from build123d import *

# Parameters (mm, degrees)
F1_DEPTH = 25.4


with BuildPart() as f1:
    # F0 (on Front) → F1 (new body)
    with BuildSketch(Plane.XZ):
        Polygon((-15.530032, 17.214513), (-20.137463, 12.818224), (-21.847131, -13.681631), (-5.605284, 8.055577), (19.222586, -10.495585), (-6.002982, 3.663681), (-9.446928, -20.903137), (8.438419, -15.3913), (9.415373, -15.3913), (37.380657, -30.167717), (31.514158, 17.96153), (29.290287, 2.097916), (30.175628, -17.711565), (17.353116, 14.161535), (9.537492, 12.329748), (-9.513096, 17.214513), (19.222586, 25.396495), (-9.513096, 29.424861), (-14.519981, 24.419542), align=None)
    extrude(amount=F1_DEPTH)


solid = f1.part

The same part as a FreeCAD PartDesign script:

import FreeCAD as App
import Part
import Sketcher
from FreeCAD import Vector


def add_polygon(sketch, points):
    """Adds a closed chain of lines whose ends are joined by coincident constraints."""
    first, n = sketch.GeometryCount, len(points)
    for a, b in zip(points, points[1:] + points[:1]):
        sketch.addGeometry(Part.LineSegment(App.Vector(*a, 0), App.Vector(*b, 0)), False)
    for i in range(n):
        sketch.addConstraint(Sketcher.Constraint("Coincident", first + i, 2, first + (i + 1) % n, 1))

doc = App.newDocument("Part")
params = doc.addObject("Spreadsheet::Sheet", "Params")
for row, (alias, value) in enumerate([
    ("pad1_length", "1 in"),
], start=1):
    params.set(f"A{row}", alias)
    params.set(f"B{row}", "=" + value)
    params.setAlias(f"B{row}", alias)

body = doc.addObject("PartDesign::Body", "Body")

# Sketch on XZ plane
sketch1 = body.newObject("Sketcher::SketchObject", "Sketch")
sketch1.AttachmentSupport = (doc.getObject("XZ_Plane"), [""])
sketch1.MapMode = "FlatFace"
add_polygon(sketch1, [(-15.5, 17.2), (-20.1, 12.8), (-21.8, -13.7), (-5.6, 8.1), (19.2, -10.5), (-6, 3.7), (-9.4, -20.9), (8.4, -15.4), (9.4, -15.4), (37.4, -30.2), (31.5, 18), (29.3, 2.1), (30.2, -17.7), (17.4, 14.2), (9.5, 12.3), (-9.5, 17.2), (19.2, 25.4), (-9.5, 29.4), (-14.5, 24.4)])  # lines 0-18
sketch1.addConstraint(Sketcher.Constraint("Horizontal", 7))
sketch1.addConstraint(Sketcher.Constraint("Perpendicular", 2, 3))
sketch1.addConstraint(Sketcher.Constraint("Parallel", 5, 10))
sketch1.addConstraint(Sketcher.Constraint("Perpendicular", 10, 16))
sketch1.addConstraint(Sketcher.Constraint("Perpendicular", 16, 18))
sketch1.addConstraint(Sketcher.Constraint("Horizontal", 14, 2, 18, 2))
sketch1.addConstraint(Sketcher.Constraint("Vertical", 3, 2, 15, 2))
sketch1.addConstraint(Sketcher.Constraint("Vertical", 14, 2, 16, 2))
sketch1.addConstraint(Sketcher.Constraint("DistanceY", 6, 2, -1, 1, 15.3913))
sketch1.addConstraint(Sketcher.Constraint("DistanceX", 4, 2, 2, 2, 0.397698))
sketch1.addConstraint(Sketcher.Constraint("DistanceX", 4, 2, 6, 2, 14.441401))
sketch1.addConstraint(Sketcher.Constraint("DistanceX", 5, 2, 7, 2, 18.862301))
sketch1.addConstraint(Sketcher.Constraint("DistanceX", 3, 2, 10, 2, 10.067701))
sketch1.addConstraint(Sketcher.Constraint("DistanceY", 3, 2, 10, 2, 12.593501))
sketch1.addConstraint(Sketcher.Constraint("DistanceX", 2, 2, 12, 2, 22.9584))
sketch1.addConstraint(Sketcher.Constraint("DistanceX", 17, 2, 4, 2, 8.516999))
sketch1.addConstraint(Sketcher.Constraint("Distance", 0, 6.368342))
sketch1.addConstraint(Sketcher.Constraint("Distance", 1, 26.554948))
sketch1.addConstraint(Sketcher.Constraint("Distance", 2, 27.134919))
sketch1.addConstraint(Sketcher.Constraint("Distance", 4, 28.927739))
sketch1.addConstraint(Sketcher.Constraint("Distance", 5, 24.807042))
sketch1.addConstraint(Sketcher.Constraint("Distance", 12, 34.355659))
sketch1.addConstraint(Sketcher.Constraint("Distance", 14, 19.666871))
sketch1.addConstraint(Sketcher.Constraint("Distance", 16, 29.01667))
sketch1.addConstraint(Sketcher.Constraint("DistanceX", 7, 1, 7, 2, 0.976954))
sketch1.addConstraint(Sketcher.Constraint("DistanceX", 1, 2, -1, 1, 21.847131))
sketch1.addConstraint(Sketcher.Constraint("DistanceY", 1, 2, -1, 1, 13.681631))
sketch1.addConstraint(Sketcher.Constraint("DistanceY", -1, 1, 4, 2, 3.663681))
sketch1.addConstraint(Sketcher.Constraint("DistanceX", -1, 1, 6, 2, 8.438419))
sketch1.addConstraint(Sketcher.Constraint("DistanceY", -1, 1, 9, 2, 17.96153))
sketch1.addConstraint(Sketcher.Constraint("DistanceY", -1, 1, 16, 2, 29.424861))
sketch1.addConstraint(Sketcher.Constraint("DistanceY", -1, 1, 17, 2, 24.419542))
sketch1.addConstraint(Sketcher.Constraint("DistanceX", 1, 2, 0, 2, 1.709668))
sketch1.addConstraint(Sketcher.Constraint("DistanceX", 3, 2, 8, 2, 18.158071))
sketch1.addConstraint(Sketcher.Constraint("DistanceY", 8, 2, 3, 2, 19.672132))
sketch1.addConstraint(Sketcher.Constraint("DistanceY", 11, 2, 3, 2, 7.21598))
sketch1.addConstraint(Sketcher.Constraint("DistanceX", 11, 2, 8, 2, 7.205029))
sketch1.addConstraint(Sketcher.Constraint("DistanceY", 2, 2, 13, 2, 4.274171))
pad1 = body.newObject("PartDesign::Pad", "Pad")
pad1.Profile = sketch1
pad1.setExpression("Length", "Params.pad1_length")

doc.recompute()
